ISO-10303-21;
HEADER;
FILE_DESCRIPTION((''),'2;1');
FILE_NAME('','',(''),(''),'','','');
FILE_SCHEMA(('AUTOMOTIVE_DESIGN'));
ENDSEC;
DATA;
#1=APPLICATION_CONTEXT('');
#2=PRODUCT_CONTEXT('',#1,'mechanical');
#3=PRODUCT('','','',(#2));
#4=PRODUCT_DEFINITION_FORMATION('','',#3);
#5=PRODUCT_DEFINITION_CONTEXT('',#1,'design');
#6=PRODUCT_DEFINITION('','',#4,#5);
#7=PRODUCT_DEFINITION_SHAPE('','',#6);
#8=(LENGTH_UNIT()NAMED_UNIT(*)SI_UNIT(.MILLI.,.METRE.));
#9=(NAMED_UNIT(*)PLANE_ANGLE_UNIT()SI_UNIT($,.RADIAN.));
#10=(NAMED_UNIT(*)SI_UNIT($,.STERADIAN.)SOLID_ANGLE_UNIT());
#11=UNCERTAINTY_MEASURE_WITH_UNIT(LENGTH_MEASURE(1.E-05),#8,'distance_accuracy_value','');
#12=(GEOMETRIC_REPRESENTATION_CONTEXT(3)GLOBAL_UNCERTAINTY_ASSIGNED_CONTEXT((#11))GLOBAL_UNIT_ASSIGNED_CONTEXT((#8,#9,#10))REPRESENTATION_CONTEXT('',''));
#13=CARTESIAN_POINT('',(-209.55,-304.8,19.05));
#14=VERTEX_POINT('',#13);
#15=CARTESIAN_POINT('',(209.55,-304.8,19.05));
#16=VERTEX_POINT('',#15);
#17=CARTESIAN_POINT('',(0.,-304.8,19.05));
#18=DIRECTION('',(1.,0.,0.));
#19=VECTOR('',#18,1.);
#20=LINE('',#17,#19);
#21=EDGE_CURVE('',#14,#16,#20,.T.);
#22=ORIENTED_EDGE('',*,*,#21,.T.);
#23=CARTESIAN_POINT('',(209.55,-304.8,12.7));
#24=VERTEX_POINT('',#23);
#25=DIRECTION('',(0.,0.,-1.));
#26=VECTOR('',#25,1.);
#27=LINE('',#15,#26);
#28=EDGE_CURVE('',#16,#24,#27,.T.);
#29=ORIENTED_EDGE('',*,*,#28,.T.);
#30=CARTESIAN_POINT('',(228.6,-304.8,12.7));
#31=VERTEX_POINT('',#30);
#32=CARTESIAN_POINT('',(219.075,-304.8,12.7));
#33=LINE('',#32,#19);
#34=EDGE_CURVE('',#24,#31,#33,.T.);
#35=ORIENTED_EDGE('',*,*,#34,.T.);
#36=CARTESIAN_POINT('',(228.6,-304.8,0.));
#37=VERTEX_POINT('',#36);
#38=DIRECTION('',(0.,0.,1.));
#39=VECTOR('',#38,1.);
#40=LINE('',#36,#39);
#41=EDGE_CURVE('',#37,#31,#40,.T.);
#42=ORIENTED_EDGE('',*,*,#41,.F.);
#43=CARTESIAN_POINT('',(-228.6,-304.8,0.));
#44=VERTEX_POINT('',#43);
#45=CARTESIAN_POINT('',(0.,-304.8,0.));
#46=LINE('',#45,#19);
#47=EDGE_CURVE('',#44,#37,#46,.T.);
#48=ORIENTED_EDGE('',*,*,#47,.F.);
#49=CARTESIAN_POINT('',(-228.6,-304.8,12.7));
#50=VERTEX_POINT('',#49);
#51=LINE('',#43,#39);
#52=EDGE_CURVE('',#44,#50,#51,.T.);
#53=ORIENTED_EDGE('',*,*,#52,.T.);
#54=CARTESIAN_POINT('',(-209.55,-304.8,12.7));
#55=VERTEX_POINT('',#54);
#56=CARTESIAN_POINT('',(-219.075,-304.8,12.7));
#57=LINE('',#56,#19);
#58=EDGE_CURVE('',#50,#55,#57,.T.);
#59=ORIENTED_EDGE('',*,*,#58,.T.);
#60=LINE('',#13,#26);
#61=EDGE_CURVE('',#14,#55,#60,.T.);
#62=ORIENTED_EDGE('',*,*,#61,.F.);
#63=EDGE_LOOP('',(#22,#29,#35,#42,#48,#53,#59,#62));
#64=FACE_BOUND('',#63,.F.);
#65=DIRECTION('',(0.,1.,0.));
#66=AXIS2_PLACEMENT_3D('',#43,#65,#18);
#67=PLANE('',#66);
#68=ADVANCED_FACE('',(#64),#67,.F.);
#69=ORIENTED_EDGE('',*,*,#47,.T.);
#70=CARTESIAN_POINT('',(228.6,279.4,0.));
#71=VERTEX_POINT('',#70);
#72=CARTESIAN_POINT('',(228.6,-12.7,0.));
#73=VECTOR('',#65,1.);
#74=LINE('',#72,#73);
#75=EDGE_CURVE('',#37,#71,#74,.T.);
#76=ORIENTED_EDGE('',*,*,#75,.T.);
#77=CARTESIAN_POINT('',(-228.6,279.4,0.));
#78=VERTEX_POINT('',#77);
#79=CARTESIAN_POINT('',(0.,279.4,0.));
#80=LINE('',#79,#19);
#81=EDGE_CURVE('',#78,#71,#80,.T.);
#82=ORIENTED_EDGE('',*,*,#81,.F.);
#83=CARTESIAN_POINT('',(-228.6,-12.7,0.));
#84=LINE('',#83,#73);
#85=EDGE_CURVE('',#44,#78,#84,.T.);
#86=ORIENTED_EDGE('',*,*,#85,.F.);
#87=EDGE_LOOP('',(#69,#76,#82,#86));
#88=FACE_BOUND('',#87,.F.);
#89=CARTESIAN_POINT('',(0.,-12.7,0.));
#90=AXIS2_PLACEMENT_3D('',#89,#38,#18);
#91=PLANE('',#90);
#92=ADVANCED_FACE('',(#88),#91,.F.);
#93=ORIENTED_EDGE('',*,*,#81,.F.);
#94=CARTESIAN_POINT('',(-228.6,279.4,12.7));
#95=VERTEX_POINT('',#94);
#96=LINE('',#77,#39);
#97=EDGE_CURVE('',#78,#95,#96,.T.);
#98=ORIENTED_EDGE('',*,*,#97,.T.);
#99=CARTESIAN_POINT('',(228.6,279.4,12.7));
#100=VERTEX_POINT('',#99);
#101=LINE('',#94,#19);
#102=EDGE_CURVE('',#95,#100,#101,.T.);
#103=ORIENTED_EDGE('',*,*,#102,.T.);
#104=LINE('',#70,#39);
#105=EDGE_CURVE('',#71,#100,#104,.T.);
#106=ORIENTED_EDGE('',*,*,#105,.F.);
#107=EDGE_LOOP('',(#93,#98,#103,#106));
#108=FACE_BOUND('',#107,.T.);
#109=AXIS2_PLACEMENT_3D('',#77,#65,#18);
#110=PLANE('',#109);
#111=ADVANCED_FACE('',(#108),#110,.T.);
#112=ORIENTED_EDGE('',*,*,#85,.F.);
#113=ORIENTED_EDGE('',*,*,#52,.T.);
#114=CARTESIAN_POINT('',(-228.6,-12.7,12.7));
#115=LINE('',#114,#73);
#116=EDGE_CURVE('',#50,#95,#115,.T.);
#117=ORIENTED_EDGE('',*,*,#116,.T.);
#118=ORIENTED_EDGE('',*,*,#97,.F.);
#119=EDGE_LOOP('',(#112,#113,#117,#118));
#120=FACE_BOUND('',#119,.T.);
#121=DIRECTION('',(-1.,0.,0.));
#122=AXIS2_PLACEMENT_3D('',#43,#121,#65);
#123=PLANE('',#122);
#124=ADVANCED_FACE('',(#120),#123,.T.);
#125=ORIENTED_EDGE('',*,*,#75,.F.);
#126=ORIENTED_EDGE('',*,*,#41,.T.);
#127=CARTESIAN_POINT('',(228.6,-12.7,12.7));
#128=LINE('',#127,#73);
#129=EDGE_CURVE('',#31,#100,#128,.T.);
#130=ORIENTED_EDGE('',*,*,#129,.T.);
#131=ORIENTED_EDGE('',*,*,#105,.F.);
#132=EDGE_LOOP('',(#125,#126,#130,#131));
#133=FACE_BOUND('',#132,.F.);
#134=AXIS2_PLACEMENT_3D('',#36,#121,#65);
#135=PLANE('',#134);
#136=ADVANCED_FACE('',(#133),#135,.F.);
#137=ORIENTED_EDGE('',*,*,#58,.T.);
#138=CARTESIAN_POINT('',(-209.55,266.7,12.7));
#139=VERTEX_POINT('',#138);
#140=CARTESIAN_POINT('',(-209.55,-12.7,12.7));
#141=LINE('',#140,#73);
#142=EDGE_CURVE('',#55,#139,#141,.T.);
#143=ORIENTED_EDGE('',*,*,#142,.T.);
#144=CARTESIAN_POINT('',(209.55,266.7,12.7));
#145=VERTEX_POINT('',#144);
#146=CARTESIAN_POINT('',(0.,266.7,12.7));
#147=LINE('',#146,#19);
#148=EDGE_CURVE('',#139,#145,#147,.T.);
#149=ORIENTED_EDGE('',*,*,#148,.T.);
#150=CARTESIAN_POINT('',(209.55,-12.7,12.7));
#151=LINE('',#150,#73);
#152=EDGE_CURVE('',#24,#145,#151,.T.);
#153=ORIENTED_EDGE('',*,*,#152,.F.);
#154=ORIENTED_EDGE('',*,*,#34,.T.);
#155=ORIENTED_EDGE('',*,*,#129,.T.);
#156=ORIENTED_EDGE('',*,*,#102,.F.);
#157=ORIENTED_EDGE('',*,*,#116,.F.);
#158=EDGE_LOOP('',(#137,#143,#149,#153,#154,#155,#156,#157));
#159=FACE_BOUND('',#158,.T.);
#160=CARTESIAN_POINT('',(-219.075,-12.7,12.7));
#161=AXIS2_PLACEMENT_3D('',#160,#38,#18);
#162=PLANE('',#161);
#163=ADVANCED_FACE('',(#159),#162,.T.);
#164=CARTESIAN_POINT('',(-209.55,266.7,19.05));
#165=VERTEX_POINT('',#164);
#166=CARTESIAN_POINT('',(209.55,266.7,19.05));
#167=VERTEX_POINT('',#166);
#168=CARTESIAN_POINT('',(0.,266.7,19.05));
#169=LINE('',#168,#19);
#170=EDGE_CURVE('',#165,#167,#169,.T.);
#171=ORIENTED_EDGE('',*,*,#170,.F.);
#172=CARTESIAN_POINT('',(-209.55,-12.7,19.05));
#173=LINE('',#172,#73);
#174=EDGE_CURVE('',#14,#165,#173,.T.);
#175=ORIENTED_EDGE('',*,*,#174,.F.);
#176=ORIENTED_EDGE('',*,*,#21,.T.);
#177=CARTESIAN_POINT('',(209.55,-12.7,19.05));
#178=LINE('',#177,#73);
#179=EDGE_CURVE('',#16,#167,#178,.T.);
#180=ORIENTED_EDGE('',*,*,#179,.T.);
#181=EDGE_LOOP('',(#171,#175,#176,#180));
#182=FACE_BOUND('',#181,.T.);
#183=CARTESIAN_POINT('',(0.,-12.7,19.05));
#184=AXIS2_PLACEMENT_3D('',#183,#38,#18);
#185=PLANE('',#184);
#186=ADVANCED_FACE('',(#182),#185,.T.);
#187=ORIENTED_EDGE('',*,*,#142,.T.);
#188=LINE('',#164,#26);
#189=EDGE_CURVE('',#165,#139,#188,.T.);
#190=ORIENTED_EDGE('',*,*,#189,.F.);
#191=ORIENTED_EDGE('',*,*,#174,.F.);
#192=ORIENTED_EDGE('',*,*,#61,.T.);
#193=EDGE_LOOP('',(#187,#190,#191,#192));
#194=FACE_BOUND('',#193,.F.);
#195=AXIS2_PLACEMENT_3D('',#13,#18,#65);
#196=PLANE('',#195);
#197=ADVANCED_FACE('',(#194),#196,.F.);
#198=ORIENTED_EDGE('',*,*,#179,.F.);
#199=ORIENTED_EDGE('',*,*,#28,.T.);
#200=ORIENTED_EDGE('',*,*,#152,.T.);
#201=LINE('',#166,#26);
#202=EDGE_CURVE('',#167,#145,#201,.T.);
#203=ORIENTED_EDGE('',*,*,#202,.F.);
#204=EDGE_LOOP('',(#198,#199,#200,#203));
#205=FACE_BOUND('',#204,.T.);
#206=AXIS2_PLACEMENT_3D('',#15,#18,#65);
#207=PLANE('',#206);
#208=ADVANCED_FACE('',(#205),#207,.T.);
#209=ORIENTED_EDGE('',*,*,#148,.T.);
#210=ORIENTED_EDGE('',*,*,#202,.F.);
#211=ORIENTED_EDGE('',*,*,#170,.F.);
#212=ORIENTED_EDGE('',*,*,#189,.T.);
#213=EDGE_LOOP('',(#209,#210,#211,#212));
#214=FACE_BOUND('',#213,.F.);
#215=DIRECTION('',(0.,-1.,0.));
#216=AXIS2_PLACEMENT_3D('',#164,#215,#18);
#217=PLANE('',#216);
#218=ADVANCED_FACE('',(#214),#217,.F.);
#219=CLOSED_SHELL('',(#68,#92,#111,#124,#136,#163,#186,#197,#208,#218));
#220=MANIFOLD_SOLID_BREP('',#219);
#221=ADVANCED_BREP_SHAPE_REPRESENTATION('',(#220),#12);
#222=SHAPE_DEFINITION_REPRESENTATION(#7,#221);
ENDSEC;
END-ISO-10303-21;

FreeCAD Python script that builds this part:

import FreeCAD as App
import Part
import Sketcher
Q = App.Units.Quantity

doc = App.newDocument("Part")
params = doc.addObject("Spreadsheet::Sheet", "Params")
for row, (alias, value) in enumerate([
    ("sketch1_width", "18 in"),
    ("sketch1_height", "23 in"),
    ("pad1_length", "0.75 in"),
    ("sketch2_height", "23 in"),
    ("sketch2_width", "0.75 in"),
    ("pocket1_length", "0.25 in"),
    ("sketch3_width", "16.5 in"),
    ("sketch3_height", "0.5 in"),
    ("pocket2_length", "0.25 in"),
], start=1):
    params.set(f"A{row}", alias)
    params.set(f"B{row}", "=" + value)
    params.setAlias(f"B{row}", alias)

body = doc.addObject("PartDesign::Body", "Body")

sketch1 = doc.addObject("Sketcher::SketchObject", "Sketch")
body.addObject(sketch1)
sketch1.AttachmentSupport = (doc.XY_Plane, [""])
sketch1.MapMode = "FlatFace"
sketch1.addGeometry(Part.LineSegment(App.Vector(-228.6, 279.4, 0), App.Vector(-228.6, -304.8, 0)), False)
sketch1.addGeometry(Part.LineSegment(App.Vector(-228.6, -304.8, 0), App.Vector(228.6, -304.8, 0)), False)
sketch1.addGeometry(Part.LineSegment(App.Vector(228.6, -304.8, 0), App.Vector(228.6, 279.4, 0)), False)
sketch1.addGeometry(Part.LineSegment(App.Vector(228.6, 279.4, 0), App.Vector(-228.6, 279.4, 0)), False)
sketch1.addConstraint(Sketcher.Constraint("Coincident", 0, 2, 1, 1))
sketch1.addConstraint(Sketcher.Constraint("Coincident", 1, 2, 2, 1))
sketch1.addConstraint(Sketcher.Constraint("Coincident", 2, 2, 3, 1))
sketch1.addConstraint(Sketcher.Constraint("Coincident", 3, 2, 0, 1))
sketch1.addConstraint(Sketcher.Constraint("Vertical", 0))
sketch1.addConstraint(Sketcher.Constraint("Horizontal", 1))
sketch1.addConstraint(Sketcher.Constraint("Vertical", 2))
sketch1.addConstraint(Sketcher.Constraint("Horizontal", 3))
sketch1.addConstraint(Sketcher.Constraint("DistanceX", 1, 1, 1, 2, Q("18 in")))
sketch1.addConstraint(Sketcher.Constraint("DistanceY", 0, 2, 0, 1, Q("23 in")))
sketch1.addConstraint(Sketcher.Constraint("DistanceX", 0, 2, -1, 1, Q("9 in")))
sketch1.addConstraint(Sketcher.Constraint("DistanceY", 0, 2, -1, 1, Q("12 in")))
sketch1.setExpression("Constraints[8]", "Params.sketch1_width")
sketch1.setExpression("Constraints[9]", "Params.sketch1_height")
pad1 = doc.addObject("PartDesign::Pad", "Pad")
body.addObject(pad1)
pad1.Profile = sketch1
pad1.setExpression("Length", "Params.pad1_length")

sketch2 = doc.addObject("Sketcher::SketchObject", "Sketch001")
body.addObject(sketch2)
sketch2.AttachmentSupport = (doc.XY_Plane, [""])
sketch2.MapMode = "FlatFace"
sketch2.AttachmentOffset = App.Placement(App.Vector(0, 0, 0.75 * 25.4), App.Rotation())
sketch2.addGeometry(Part.LineSegment(App.Vector(209.55, 279.4, 0), App.Vector(209.55, -304.8, 0)), False)
sketch2.addGeometry(Part.LineSegment(App.Vector(209.55, -304.8, 0), App.Vector(228.6, -304.8, 0)), False)
sketch2.addGeometry(Part.LineSegment(App.Vector(228.6, -304.8, 0), App.Vector(228.6, 279.4, 0)), False)
sketch2.addGeometry(Part.LineSegment(App.Vector(228.6, 279.4, 0), App.Vector(209.55, 279.4, 0)), False)
sketch2.addGeometry(Part.LineSegment(App.Vector(-228.6, 279.4, 0), App.Vector(-228.6, -304.8, 0)), False)
sketch2.addGeometry(Part.LineSegment(App.Vector(-228.6, -304.8, 0), App.Vector(-209.55, -304.8, 0)), False)
sketch2.addGeometry(Part.LineSegment(App.Vector(-209.55, -304.8, 0), App.Vector(-209.55, 279.4, 0)), False)
sketch2.addGeometry(Part.LineSegment(App.Vector(-209.55, 279.4, 0), App.Vector(-228.6, 279.4, 0)), False)
sketch2.addConstraint(Sketcher.Constraint("Coincident", 0, 2, 1, 1))
sketch2.addConstraint(Sketcher.Constraint("Coincident", 1, 2, 2, 1))
sketch2.addConstraint(Sketcher.Constraint("Coincident", 2, 2, 3, 1))
sketch2.addConstraint(Sketcher.Constraint("Coincident", 3, 2, 0, 1))
sketch2.addConstraint(Sketcher.Constraint("Coincident", 4, 2, 5, 1))
sketch2.addConstraint(Sketcher.Constraint("Coincident", 5, 2, 6, 1))
sketch2.addConstraint(Sketcher.Constraint("Coincident", 6, 2, 7, 1))
sketch2.addConstraint(Sketcher.Constraint("Coincident", 7, 2, 4, 1))
sketch2.addConstraint(Sketcher.Constraint("Vertical", 0))
sketch2.addConstraint(Sketcher.Constraint("Horizontal", 1))
sketch2.addConstraint(Sketcher.Constraint("Vertical", 2))
sketch2.addConstraint(Sketcher.Constraint("Horizontal", 3))
sketch2.addConstraint(Sketcher.Constraint("Vertical", 4))
sketch2.addConstraint(Sketcher.Constraint("Horizontal", 5))
sketch2.addConstraint(Sketcher.Constraint("Vertical", 6))
sketch2.addConstraint(Sketcher.Constraint("Horizontal", 7))
sketch2.addConstraint(Sketcher.Constraint("Symmetric", 1, 2, 4, 2, -2))
sketch2.addConstraint(Sketcher.Constraint("Symmetric", 3, 2, 6, 2, -2))
sketch2.addConstraint(Sketcher.Constraint("DistanceY", 0, 2, 0, 1, Q("23 in")))
sketch2.addConstraint(Sketcher.Constraint("DistanceY", 0, 2, -1, 1, Q("12 in")))
sketch2.addConstraint(Sketcher.Constraint("DistanceX", -1, 1, 1, 2, Q("9 in")))
sketch2.addConstraint(Sketcher.Constraint("DistanceX", 1, 1, 1, 2, Q("0.75 in")))
sketch2.setExpression("Constraints[18]", "Params.sketch2_height")
sketch2.setExpression("Constraints[21]", "Params.sketch2_width")
pocket1 = doc.addObject("PartDesign::Pocket", "Pocket")
body.addObject(pocket1)
pocket1.Profile = sketch2
pocket1.setExpression("Length", "Params.pocket1_length")

sketch3 = doc.addObject("Sketcher::SketchObject", "Sketch002")
body.addObject(sketch3)
sketch3.AttachmentSupport = (doc.XY_Plane, [""])
sketch3.MapMode = "FlatFace"
sketch3.AttachmentOffset = App.Placement(App.Vector(0, 0, 0.75 * 25.4), App.Rotation())
sketch3.addGeometry(Part.LineSegment(App.Vector(-209.55, 279.4, 0), App.Vector(-209.55, 266.7, 0)), False)
sketch3.addGeometry(Part.LineSegment(App.Vector(-209.55, 266.7, 0), App.Vector(209.55, 266.7, 0)), False)
sketch3.addGeometry(Part.LineSegment(App.Vector(209.55, 266.7, 0), App.Vector(209.55, 279.4, 0)), False)
sketch3.addGeometry(Part.LineSegment(App.Vector(209.55, 279.4, 0), App.Vector(-209.55, 279.4, 0)), False)
sketch3.addConstraint(Sketcher.Constraint("Coincident", 0, 2, 1, 1))
sketch3.addConstraint(Sketcher.Constraint("Coincident", 1, 2, 2, 1))
sketch3.addConstraint(Sketcher.Constraint("Coincident", 2, 2, 3, 1))
sketch3.addConstraint(Sketcher.Constraint("Coincident", 3, 2, 0, 1))
sketch3.addConstraint(Sketcher.Constraint("Vertical", 0))
sketch3.addConstraint(Sketcher.Constraint("Horizontal", 1))
sketch3.addConstraint(Sketcher.Constraint("Vertical", 2))
sketch3.addConstraint(Sketcher.Constraint("Horizontal", 3))
sketch3.addConstraint(Sketcher.Constraint("DistanceX", 1, 1, 1, 2, Q("16.5 in")))
sketch3.addConstraint(Sketcher.Constraint("DistanceY", 0, 2, 0, 1, Q("0.5 in")))
sketch3.addConstraint(Sketcher.Constraint("DistanceY", -1, 1, 2, 2, Q("11 in")))
sketch3.addConstraint(Sketcher.Constraint("DistanceX", 0, 2, -1, 1, Q("8.25 in")))
sketch3.setExpression("Constraints[8]", "Params.sketch3_width")
sketch3.setExpression("Constraints[9]", "Params.sketch3_height")
pocket2 = doc.addObject("PartDesign::Pocket", "Pocket001")
body.addObject(pocket2)
pocket2.Profile = sketch3
pocket2.setExpression("Length", "Params.pocket2_length")

doc.recompute()
